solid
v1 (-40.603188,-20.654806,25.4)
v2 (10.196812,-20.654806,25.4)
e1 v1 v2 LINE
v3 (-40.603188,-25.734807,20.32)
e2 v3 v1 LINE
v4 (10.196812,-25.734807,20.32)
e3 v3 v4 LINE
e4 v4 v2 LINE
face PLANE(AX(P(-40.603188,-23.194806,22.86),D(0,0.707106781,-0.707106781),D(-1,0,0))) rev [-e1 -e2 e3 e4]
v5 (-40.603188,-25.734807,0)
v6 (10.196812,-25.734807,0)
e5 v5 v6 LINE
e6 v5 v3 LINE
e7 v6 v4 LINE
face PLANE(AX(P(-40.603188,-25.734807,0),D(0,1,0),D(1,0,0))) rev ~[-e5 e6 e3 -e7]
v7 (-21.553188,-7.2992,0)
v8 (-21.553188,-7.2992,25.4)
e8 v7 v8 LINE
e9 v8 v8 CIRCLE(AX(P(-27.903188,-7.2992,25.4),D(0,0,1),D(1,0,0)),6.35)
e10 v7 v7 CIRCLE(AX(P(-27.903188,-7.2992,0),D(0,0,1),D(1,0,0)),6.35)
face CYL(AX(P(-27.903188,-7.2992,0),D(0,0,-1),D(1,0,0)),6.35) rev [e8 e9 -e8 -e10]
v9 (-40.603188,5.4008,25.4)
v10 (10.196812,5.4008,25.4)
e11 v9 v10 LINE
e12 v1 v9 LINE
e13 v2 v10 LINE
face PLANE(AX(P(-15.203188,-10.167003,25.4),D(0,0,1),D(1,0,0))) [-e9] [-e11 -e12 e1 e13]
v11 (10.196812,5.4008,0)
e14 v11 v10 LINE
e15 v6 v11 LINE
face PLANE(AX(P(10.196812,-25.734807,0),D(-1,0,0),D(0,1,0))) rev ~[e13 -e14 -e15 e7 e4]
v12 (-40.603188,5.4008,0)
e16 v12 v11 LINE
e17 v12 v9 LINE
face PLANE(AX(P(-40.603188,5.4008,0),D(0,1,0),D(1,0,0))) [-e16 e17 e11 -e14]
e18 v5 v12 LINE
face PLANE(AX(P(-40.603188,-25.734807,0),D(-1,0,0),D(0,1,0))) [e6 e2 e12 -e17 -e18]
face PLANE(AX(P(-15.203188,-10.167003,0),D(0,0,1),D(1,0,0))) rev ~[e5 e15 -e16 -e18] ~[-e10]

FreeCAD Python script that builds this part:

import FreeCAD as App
import Part
import Sketcher
from FreeCAD import Vector
Q = App.Units.Quantity


def edges_at(feature, points):
    """Names of the edges that pass closest to the given points."""
    edges = feature.Shape.Edges
    near = lambda p: min(range(len(edges)), key=lambda i: edges[i].distToShape(Part.Vertex(*p))[0])
    return sorted({f"Edge{near(p) + 1}" for p in points})


def add_polygon(sketch, points):
    """Adds a closed chain of lines whose ends are joined by coincident constraints."""
    first, n = sketch.GeometryCount, len(points)
    for a, b in zip(points, points[1:] + points[:1]):
        sketch.addGeometry(Part.LineSegment(App.Vector(*a, 0), App.Vector(*b, 0)), False)
    for i in range(n):
        sketch.addConstraint(Sketcher.Constraint("Coincident", first + i, 2, first + (i + 1) % n, 1))

doc = App.newDocument("Part")
params = doc.addObject("Spreadsheet::Sheet", "Params")
for row, (alias, value) in enumerate([
    ("sketch1_diameter", "0.5 in"),
    ("sketch1_width", "2 in"),
    ("pad1_length", "1 in"),
    ("chamfer_size", "0.2 in"),
], start=1):
    params.set(f"A{row}", alias)
    params.set(f"B{row}", "=" + value)
    params.setAlias(f"B{row}", alias)

body = doc.addObject("PartDesign::Body", "Body")

sketch1 = doc.addObject("Sketcher::SketchObject", "Sketch")
body.addObject(sketch1)
sketch1.AttachmentSupport = (doc.XY_Plane, [""])
sketch1.MapMode = "FlatFace"
add_polygon(sketch1, [(-40.603188, 5.4008), (-40.603188, -25.734807), (10.196812, -25.734807), (10.196812, 5.4008)])
sketch1.addGeometry(Part.Circle(Vector(-27.903188, -7.2992, 0), Vector(0, 0, 1), 6.35), False)
sketch1.addConstraint([
    Sketcher.Constraint("Vertical", 0),
    Sketcher.Constraint("Horizontal", 1),
    Sketcher.Constraint("Vertical", 2),
    Sketcher.Constraint("Horizontal", 3),
    Sketcher.Constraint("Diameter", 4, Q("0.5 in")),
    Sketcher.Constraint("DistanceX", 1, 1, 1, 2, Q("2 in")),
    Sketcher.Constraint("DistanceX", 0, 2, 4, 3, Q("0.5 in")),
    Sketcher.Constraint("DistanceY", 4, 3, 2, 2, Q("0.5 in")),
    Sketcher.Constraint("DistanceY", 4, 3, -1, 1, 7.2992),
    Sketcher.Constraint("DistanceY", 0, 2, 0, 1, 31.135607),
    Sketcher.Constraint("DistanceX", 4, 3, -1, 1, 27.903188),
])
sketch1.setExpression("Constraints[8]", "Params.sketch1_diameter")
sketch1.setExpression("Constraints[9]", "Params.sketch1_width")
pad1 = doc.addObject("PartDesign::Pad", "Pad")
body.addObject(pad1)
pad1.Profile = sketch1
pad1.setExpression("Length", "Params.pad1_length")
doc.recompute()

chamfer = doc.addObject("PartDesign::Chamfer", "Chamfer")
body.addObject(chamfer)
chamfer.Base = (pad1, edges_at(pad1, [(-15.203, -25.735, 25.4)]))
chamfer.setExpression("Size", "Params.chamfer_size")

doc.recompute()
